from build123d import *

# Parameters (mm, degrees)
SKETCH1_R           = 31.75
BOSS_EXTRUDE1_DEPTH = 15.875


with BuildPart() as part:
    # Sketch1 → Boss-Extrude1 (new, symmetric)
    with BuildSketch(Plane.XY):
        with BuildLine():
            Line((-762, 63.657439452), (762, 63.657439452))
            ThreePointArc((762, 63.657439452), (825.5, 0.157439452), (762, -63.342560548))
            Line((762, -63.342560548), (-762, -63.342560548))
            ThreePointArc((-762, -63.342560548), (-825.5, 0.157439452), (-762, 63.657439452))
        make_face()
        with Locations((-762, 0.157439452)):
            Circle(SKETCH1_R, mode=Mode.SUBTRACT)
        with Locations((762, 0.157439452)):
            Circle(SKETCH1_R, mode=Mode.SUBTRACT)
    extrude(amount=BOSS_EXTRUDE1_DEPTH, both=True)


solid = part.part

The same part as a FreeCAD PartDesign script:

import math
import FreeCAD as App
import Part
import Sketcher
Q = App.Units.Quantity

doc = App.newDocument("Part")
body = doc.addObject("PartDesign::Body", "Body")

# Sketch on XY plane
sketch1 = doc.addObject("Sketcher::SketchObject", "Sketch")
body.addObject(sketch1)
sketch1.AttachmentSupport = (doc.XY_Plane, [""])
sketch1.MapMode = "FlatFace"
sketch1.addGeometry([
    Part.LineSegment(App.Vector(762, 64, 0), App.Vector(-762, 64, 0)),  # 0
    Part.ArcOfCircle(Part.Circle(App.Vector(-762, 0, 0), App.Vector(0, 0, 1), 64), math.radians(90), math.radians(270)),  # 1
    Part.LineSegment(App.Vector(-762, -63, 0), App.Vector(762, -63, 0)),  # 2
    Part.ArcOfCircle(Part.Circle(App.Vector(762, 0, 0), App.Vector(0, 0, 1), 64), math.radians(-90), math.radians(90)),  # 3
    Part.Circle(App.Vector(762, 0, 0), App.Vector(0, 0, 1), 32),  # 4
    Part.Circle(App.Vector(-762, 0, 0), App.Vector(0, 0, 1), 32),  # 5
], False)
sketch1.addConstraint([
    Sketcher.Constraint("Tangent", 0, 2, 1, 1),
    Sketcher.Constraint("Tangent", 1, 2, 2, 1),
    Sketcher.Constraint("Tangent", 2, 2, 3, 1),
    Sketcher.Constraint("Tangent", 3, 2, 0, 1),
    Sketcher.Constraint("Horizontal", 0),
    Sketcher.Constraint("Horizontal", 2),
    Sketcher.Constraint("Coincident", 4, 3, 3, 3),
    Sketcher.Constraint("Coincident", 5, 3, 1, 3),
    Sketcher.Constraint("Equal", 4, 5),
    Sketcher.Constraint("Diameter", 4, Q("2.5 in")),
    Sketcher.Constraint("Radius", 1, Q("2.5 in")),
    Sketcher.Constraint("DistanceX", 0, 2, 0, 1, Q("60 in")),
    Sketcher.Constraint("DistanceX", 1, 3, -1, 1, Q("30 in")),
    Sketcher.Constraint("DistanceY", -1, 1, 1, 3, 0.157439),
])
pad1 = doc.addObject("PartDesign::Pad", "Pad")
body.addObject(pad1)
pad1.Profile = sketch1
pad1.Length = Q("1.25 in")
pad1.Midplane = True

doc.recompute()
